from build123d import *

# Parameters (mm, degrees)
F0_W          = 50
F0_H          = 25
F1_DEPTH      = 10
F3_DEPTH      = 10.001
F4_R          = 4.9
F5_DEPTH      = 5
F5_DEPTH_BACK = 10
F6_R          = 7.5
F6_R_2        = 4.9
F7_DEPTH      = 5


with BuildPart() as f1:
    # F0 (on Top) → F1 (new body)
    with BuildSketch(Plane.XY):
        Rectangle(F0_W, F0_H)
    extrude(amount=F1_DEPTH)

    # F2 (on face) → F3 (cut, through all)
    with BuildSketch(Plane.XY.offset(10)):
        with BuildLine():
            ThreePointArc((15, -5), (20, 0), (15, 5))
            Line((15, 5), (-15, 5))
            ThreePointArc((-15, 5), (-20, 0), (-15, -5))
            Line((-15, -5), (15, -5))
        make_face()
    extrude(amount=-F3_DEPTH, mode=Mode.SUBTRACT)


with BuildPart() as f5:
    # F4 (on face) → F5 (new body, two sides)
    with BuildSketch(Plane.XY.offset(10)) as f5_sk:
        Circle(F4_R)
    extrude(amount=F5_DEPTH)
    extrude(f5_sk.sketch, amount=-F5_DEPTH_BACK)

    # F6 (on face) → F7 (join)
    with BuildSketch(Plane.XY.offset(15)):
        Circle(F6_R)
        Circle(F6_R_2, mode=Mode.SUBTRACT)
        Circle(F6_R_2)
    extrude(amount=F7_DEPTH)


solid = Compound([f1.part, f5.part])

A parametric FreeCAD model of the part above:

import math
import FreeCAD as App
import Part
import Sketcher
from FreeCAD import Vector

doc = App.newDocument("Part")
params = doc.addObject("Spreadsheet::Sheet", "Params")
for row, (alias, value) in enumerate([
    ("sketch1_width", "50 mm"),
    ("sketch1_height", "25 mm"),
    ("pad1_length", "10 mm"),
    ("sketch2_radius", "5 mm"),
    ("sketch2_width", "30 mm"),
    ("sketch3_diameter", "9.8 mm"),
    ("pad2_length", "5 mm"),
    ("pad2_length2", "10 mm"),
    ("sketch4_diameter", "15 mm"),
    ("pad3_length", "5 mm"),
], start=1):
    params.set(f"A{row}", alias)
    params.set(f"B{row}", "=" + value)
    params.setAlias(f"B{row}", alias)

body = doc.addObject("PartDesign::Body", "Body")

sketch1 = body.newObject("Sketcher::SketchObject", "Sketch")
sketch1.AttachmentSupport = (doc.getObject("XY_Plane"), [""])
sketch1.MapMode = "FlatFace"
sketch1.addGeometry([
    Part.LineSegment(Vector(-25, 12, 0), Vector(-25, -12, 0)),
    Part.LineSegment(Vector(-25, -12, 0), Vector(25, -12, 0)),
    Part.LineSegment(Vector(25, -12, 0), Vector(25, 12, 0)),
    Part.LineSegment(Vector(25, 12, 0), Vector(-25, 12, 0)),
], False)
sketch1.addConstraint([
    Sketcher.Constraint("Coincident", 0, 2, 1, 1),
    Sketcher.Constraint("Coincident", 1, 2, 2, 1),
    Sketcher.Constraint("Coincident", 2, 2, 3, 1),
    Sketcher.Constraint("Coincident", 3, 2, 0, 1),
    Sketcher.Constraint("Vertical", 0),
    Sketcher.Constraint("Horizontal", 1),
    Sketcher.Constraint("Vertical", 2),
    Sketcher.Constraint("Horizontal", 3),
    Sketcher.Constraint("Symmetric", 0, 2, 2, 2, -1, 1),
    Sketcher.Constraint("DistanceX", 1, 1, 1, 2, 50.0),
    Sketcher.Constraint("DistanceY", 0, 2, 0, 1, 25.0),
])
sketch1.setExpression("Constraints[9]", "Params.sketch1_width")
sketch1.setExpression("Constraints[10]", "Params.sketch1_height")
pad1 = body.newObject("PartDesign::Pad", "Pad")
pad1.Profile = sketch1
pad1.setExpression("Length", "Params.pad1_length")

sketch2 = body.newObject("Sketcher::SketchObject", "Sketch001")
sketch2.AttachmentSupport = (doc.getObject("XY_Plane"), [""])
sketch2.MapMode = "FlatFace"
sketch2.AttachmentOffset = App.Placement(Vector(0, 0, 10), App.Rotation())
sketch2.addGeometry([
    Part.ArcOfCircle(Part.Circle(Vector(15, 0, 0), Vector(0, 0, 1), 5), math.radians(-90), math.radians(90)),
    Part.LineSegment(Vector(15, 5, 0), Vector(-15, 5, 0)),
    Part.ArcOfCircle(Part.Circle(Vector(-15, 0, 0), Vector(0, 0, 1), 5), math.radians(90), math.radians(270)),
    Part.LineSegment(Vector(-15, -5, 0), Vector(15, -5, 0)),
], False)
sketch2.addConstraint([
    Sketcher.Constraint("Tangent", 0, 2, 1, 1),
    Sketcher.Constraint("Tangent", 1, 2, 2, 1),
    Sketcher.Constraint("Tangent", 2, 2, 3, 1),
    Sketcher.Constraint("Tangent", 3, 2, 0, 1),
    Sketcher.Constraint("Horizontal", 1),
    Sketcher.Constraint("Horizontal", 3),
    Sketcher.Constraint("Symmetric", 0, 3, 2, 3, -1, 1),
    Sketcher.Constraint("Radius", 0, 5.0),
    Sketcher.Constraint("DistanceX", 1, 2, 1, 1, 30.0),
])
sketch2.setExpression("Constraints[7]", "Params.sketch2_radius")
sketch2.setExpression("Constraints[8]", "Params.sketch2_width")
pocket1 = body.newObject("PartDesign::Pocket", "Pocket")
pocket1.Profile = sketch2
pocket1.Type = "ThroughAll"
body2 = doc.addObject("PartDesign::Body", "Body001")

sketch3 = body2.newObject("Sketcher::SketchObject", "Sketch002")
sketch3.AttachmentSupport = (doc.getObject("XY_Plane001"), [""])
sketch3.MapMode = "FlatFace"
sketch3.AttachmentOffset = App.Placement(Vector(0, 0, 10), App.Rotation())
sketch3.addGeometry(Part.Circle(Vector(0, 0, 0), Vector(0, 0, 1), 4.9), False)
sketch3.addConstraint([
    Sketcher.Constraint("Coincident", 0, 3, -1, 1),
    Sketcher.Constraint("Diameter", 0, 9.8),
])
sketch3.setExpression("Constraints[1]", "Params.sketch3_diameter")
pad2 = body2.newObject("PartDesign::Pad", "Pad001")
pad2.Profile = sketch3
pad2.Type = "TwoLengths"
pad2.setExpression("Length", "Params.pad2_length")
pad2.setExpression("Length2", "Params.pad2_length2")

sketch4 = body2.newObject("Sketcher::SketchObject", "Sketch003")
sketch4.AttachmentSupport = (doc.getObject("XY_Plane001"), [""])
sketch4.MapMode = "FlatFace"
sketch4.AttachmentOffset = App.Placement(Vector(0, 0, 15), App.Rotation())
sketch4.addGeometry(Part.Circle(Vector(0, 0, 0), Vector(0, 0, 1), 8), False)
sketch4.addConstraint([
    Sketcher.Constraint("Coincident", 0, 3, -1, 1),
    Sketcher.Constraint("Diameter", 0, 15.0),
])
sketch4.setExpression("Constraints[1]", "Params.sketch4_diameter")
pad3 = body2.newObject("PartDesign::Pad", "Pad002")
pad3.Profile = sketch4
pad3.setExpression("Length", "Params.pad3_length")

doc.recompute()
